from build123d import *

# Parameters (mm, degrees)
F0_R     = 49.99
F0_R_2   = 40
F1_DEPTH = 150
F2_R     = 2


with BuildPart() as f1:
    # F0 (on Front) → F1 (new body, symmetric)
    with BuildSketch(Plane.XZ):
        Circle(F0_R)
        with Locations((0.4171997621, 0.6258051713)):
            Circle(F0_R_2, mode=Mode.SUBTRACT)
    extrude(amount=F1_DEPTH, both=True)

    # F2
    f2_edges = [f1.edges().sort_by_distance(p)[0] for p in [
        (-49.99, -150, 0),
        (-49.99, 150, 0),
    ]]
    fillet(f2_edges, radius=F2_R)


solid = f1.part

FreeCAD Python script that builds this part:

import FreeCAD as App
import Part
import Sketcher
Q = App.Units.Quantity


def edges_at(feature, points):
    """Names of the edges that pass closest to the given points."""
    edges = feature.Shape.Edges
    near = lambda p: min(range(len(edges)), key=lambda i: edges[i].distToShape(Part.Vertex(*p))[0])
    return sorted({f"Edge{near(p) + 1}" for p in points})

doc = App.newDocument("Part")
body = doc.addObject("PartDesign::Body", "Body")

# Sketch on XZ plane
sketch1 = doc.addObject("Sketcher::SketchObject", "Sketch")
body.addObject(sketch1)
sketch1.AttachmentSupport = (doc.XZ_Plane, [""])
sketch1.MapMode = "FlatFace"
sketch1.addGeometry([
    Part.Circle(App.Vector(0, 0, 0), App.Vector(0, 0, 1), 49.99),
    Part.Circle(App.Vector(0.4172, 0.625805, 0), App.Vector(0, 0, 1), 40),
], False)
sketch1.addConstraint([
    Sketcher.Constraint("Coincident", 0, 3, -1, 1),
    Sketcher.Constraint("Diameter", 1, Q("80 mm")),
    Sketcher.Constraint("Diameter", 0, Q("99.98 mm")),
    Sketcher.Constraint("DistanceX", -1, 1, 1, 3, Q("0.4172 mm")),
    Sketcher.Constraint("DistanceY", -1, 1, 1, 3, Q("0.625805 mm")),
])
pad1 = doc.addObject("PartDesign::Pad", "Pad")
body.addObject(pad1)
pad1.Profile = sketch1
pad1.Length = 300
pad1.Midplane = True
doc.recompute()

fillet = doc.addObject("PartDesign::Fillet", "Fillet")
body.addObject(fillet)
fillet.Base = (pad1, edges_at(pad1, [(-49.99, -150, 0), (-49.99, 150, 0)]))
fillet.Radius = 2

doc.recompute()
